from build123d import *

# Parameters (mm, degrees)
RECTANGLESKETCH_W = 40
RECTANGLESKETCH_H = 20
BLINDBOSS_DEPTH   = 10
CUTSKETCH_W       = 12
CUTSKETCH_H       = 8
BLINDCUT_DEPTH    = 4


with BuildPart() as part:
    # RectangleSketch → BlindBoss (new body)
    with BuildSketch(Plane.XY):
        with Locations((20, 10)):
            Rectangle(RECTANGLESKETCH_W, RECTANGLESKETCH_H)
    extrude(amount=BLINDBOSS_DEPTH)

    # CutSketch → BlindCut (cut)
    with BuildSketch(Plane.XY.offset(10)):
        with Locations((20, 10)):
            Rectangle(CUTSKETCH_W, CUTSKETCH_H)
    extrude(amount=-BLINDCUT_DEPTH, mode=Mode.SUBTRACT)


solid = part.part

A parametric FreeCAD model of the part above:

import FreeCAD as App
import Part
import Sketcher

V = App.Vector


def add_polygon(sketch, points):
    """Adds a closed chain of lines whose ends are joined by coincident constraints."""
    first, n = sketch.GeometryCount, len(points)
    for a, b in zip(points, points[1:] + points[:1]):
        sketch.addGeometry(Part.LineSegment(App.Vector(*a, 0), App.Vector(*b, 0)), False)
    for i in range(n):
        sketch.addConstraint(Sketcher.Constraint("Coincident", first + i, 2, first + (i + 1) % n, 1))

doc = App.newDocument("Part")
body = doc.addObject("PartDesign::Body", "Body")

sketch1 = body.newObject("Sketcher::SketchObject", "Sketch")
sketch1.AttachmentSupport = (doc.getObject("XY_Plane"), [""])
sketch1.MapMode = "FlatFace"
add_polygon(sketch1, [(0, 20), (0, 0), (40, 0), (40, 20)])
sketch1.addConstraint(Sketcher.Constraint("Vertical", 0))
sketch1.addConstraint(Sketcher.Constraint("Horizontal", 1))
sketch1.addConstraint(Sketcher.Constraint("Vertical", 2))
sketch1.addConstraint(Sketcher.Constraint("Horizontal", 3))
sketch1.addConstraint(Sketcher.Constraint("Coincident", 0, 2, -1, 1))
sketch1.addConstraint(Sketcher.Constraint("DistanceX", 1, 1, 1, 2, 40.0))
sketch1.addConstraint(Sketcher.Constraint("DistanceY", 0, 2, 0, 1, 20.0))
pad1 = body.newObject("PartDesign::Pad", "Pad")
pad1.Profile = sketch1
pad1.Length = 10

sketch2 = body.newObject("Sketcher::SketchObject", "Sketch001")
sketch2.AttachmentSupport = (doc.getObject("XY_Plane"), [""])
sketch2.MapMode = "FlatFace"
sketch2.AttachmentOffset = App.Placement(V(0, 0, 10), App.Rotation())
add_polygon(sketch2, [(14, 14), (14, 6), (26, 6), (26, 14)])
sketch2.addConstraint(Sketcher.Constraint("Vertical", 0))
sketch2.addConstraint(Sketcher.Constraint("Horizontal", 1))
sketch2.addConstraint(Sketcher.Constraint("Vertical", 2))
sketch2.addConstraint(Sketcher.Constraint("Horizontal", 3))
sketch2.addConstraint(Sketcher.Constraint("DistanceX", 1, 1, 1, 2, 12.0))
sketch2.addConstraint(Sketcher.Constraint("DistanceY", 0, 2, 0, 1, 8.0))
sketch2.addConstraint(Sketcher.Constraint("DistanceX", -1, 1, 0, 2, 14.0))
sketch2.addConstraint(Sketcher.Constraint("DistanceY", -1, 1, 0, 2, 6.0))
pocket1 = body.newObject("PartDesign::Pocket", "Pocket")
pocket1.Profile = sketch2
pocket1.Length = 4

doc.recompute()
